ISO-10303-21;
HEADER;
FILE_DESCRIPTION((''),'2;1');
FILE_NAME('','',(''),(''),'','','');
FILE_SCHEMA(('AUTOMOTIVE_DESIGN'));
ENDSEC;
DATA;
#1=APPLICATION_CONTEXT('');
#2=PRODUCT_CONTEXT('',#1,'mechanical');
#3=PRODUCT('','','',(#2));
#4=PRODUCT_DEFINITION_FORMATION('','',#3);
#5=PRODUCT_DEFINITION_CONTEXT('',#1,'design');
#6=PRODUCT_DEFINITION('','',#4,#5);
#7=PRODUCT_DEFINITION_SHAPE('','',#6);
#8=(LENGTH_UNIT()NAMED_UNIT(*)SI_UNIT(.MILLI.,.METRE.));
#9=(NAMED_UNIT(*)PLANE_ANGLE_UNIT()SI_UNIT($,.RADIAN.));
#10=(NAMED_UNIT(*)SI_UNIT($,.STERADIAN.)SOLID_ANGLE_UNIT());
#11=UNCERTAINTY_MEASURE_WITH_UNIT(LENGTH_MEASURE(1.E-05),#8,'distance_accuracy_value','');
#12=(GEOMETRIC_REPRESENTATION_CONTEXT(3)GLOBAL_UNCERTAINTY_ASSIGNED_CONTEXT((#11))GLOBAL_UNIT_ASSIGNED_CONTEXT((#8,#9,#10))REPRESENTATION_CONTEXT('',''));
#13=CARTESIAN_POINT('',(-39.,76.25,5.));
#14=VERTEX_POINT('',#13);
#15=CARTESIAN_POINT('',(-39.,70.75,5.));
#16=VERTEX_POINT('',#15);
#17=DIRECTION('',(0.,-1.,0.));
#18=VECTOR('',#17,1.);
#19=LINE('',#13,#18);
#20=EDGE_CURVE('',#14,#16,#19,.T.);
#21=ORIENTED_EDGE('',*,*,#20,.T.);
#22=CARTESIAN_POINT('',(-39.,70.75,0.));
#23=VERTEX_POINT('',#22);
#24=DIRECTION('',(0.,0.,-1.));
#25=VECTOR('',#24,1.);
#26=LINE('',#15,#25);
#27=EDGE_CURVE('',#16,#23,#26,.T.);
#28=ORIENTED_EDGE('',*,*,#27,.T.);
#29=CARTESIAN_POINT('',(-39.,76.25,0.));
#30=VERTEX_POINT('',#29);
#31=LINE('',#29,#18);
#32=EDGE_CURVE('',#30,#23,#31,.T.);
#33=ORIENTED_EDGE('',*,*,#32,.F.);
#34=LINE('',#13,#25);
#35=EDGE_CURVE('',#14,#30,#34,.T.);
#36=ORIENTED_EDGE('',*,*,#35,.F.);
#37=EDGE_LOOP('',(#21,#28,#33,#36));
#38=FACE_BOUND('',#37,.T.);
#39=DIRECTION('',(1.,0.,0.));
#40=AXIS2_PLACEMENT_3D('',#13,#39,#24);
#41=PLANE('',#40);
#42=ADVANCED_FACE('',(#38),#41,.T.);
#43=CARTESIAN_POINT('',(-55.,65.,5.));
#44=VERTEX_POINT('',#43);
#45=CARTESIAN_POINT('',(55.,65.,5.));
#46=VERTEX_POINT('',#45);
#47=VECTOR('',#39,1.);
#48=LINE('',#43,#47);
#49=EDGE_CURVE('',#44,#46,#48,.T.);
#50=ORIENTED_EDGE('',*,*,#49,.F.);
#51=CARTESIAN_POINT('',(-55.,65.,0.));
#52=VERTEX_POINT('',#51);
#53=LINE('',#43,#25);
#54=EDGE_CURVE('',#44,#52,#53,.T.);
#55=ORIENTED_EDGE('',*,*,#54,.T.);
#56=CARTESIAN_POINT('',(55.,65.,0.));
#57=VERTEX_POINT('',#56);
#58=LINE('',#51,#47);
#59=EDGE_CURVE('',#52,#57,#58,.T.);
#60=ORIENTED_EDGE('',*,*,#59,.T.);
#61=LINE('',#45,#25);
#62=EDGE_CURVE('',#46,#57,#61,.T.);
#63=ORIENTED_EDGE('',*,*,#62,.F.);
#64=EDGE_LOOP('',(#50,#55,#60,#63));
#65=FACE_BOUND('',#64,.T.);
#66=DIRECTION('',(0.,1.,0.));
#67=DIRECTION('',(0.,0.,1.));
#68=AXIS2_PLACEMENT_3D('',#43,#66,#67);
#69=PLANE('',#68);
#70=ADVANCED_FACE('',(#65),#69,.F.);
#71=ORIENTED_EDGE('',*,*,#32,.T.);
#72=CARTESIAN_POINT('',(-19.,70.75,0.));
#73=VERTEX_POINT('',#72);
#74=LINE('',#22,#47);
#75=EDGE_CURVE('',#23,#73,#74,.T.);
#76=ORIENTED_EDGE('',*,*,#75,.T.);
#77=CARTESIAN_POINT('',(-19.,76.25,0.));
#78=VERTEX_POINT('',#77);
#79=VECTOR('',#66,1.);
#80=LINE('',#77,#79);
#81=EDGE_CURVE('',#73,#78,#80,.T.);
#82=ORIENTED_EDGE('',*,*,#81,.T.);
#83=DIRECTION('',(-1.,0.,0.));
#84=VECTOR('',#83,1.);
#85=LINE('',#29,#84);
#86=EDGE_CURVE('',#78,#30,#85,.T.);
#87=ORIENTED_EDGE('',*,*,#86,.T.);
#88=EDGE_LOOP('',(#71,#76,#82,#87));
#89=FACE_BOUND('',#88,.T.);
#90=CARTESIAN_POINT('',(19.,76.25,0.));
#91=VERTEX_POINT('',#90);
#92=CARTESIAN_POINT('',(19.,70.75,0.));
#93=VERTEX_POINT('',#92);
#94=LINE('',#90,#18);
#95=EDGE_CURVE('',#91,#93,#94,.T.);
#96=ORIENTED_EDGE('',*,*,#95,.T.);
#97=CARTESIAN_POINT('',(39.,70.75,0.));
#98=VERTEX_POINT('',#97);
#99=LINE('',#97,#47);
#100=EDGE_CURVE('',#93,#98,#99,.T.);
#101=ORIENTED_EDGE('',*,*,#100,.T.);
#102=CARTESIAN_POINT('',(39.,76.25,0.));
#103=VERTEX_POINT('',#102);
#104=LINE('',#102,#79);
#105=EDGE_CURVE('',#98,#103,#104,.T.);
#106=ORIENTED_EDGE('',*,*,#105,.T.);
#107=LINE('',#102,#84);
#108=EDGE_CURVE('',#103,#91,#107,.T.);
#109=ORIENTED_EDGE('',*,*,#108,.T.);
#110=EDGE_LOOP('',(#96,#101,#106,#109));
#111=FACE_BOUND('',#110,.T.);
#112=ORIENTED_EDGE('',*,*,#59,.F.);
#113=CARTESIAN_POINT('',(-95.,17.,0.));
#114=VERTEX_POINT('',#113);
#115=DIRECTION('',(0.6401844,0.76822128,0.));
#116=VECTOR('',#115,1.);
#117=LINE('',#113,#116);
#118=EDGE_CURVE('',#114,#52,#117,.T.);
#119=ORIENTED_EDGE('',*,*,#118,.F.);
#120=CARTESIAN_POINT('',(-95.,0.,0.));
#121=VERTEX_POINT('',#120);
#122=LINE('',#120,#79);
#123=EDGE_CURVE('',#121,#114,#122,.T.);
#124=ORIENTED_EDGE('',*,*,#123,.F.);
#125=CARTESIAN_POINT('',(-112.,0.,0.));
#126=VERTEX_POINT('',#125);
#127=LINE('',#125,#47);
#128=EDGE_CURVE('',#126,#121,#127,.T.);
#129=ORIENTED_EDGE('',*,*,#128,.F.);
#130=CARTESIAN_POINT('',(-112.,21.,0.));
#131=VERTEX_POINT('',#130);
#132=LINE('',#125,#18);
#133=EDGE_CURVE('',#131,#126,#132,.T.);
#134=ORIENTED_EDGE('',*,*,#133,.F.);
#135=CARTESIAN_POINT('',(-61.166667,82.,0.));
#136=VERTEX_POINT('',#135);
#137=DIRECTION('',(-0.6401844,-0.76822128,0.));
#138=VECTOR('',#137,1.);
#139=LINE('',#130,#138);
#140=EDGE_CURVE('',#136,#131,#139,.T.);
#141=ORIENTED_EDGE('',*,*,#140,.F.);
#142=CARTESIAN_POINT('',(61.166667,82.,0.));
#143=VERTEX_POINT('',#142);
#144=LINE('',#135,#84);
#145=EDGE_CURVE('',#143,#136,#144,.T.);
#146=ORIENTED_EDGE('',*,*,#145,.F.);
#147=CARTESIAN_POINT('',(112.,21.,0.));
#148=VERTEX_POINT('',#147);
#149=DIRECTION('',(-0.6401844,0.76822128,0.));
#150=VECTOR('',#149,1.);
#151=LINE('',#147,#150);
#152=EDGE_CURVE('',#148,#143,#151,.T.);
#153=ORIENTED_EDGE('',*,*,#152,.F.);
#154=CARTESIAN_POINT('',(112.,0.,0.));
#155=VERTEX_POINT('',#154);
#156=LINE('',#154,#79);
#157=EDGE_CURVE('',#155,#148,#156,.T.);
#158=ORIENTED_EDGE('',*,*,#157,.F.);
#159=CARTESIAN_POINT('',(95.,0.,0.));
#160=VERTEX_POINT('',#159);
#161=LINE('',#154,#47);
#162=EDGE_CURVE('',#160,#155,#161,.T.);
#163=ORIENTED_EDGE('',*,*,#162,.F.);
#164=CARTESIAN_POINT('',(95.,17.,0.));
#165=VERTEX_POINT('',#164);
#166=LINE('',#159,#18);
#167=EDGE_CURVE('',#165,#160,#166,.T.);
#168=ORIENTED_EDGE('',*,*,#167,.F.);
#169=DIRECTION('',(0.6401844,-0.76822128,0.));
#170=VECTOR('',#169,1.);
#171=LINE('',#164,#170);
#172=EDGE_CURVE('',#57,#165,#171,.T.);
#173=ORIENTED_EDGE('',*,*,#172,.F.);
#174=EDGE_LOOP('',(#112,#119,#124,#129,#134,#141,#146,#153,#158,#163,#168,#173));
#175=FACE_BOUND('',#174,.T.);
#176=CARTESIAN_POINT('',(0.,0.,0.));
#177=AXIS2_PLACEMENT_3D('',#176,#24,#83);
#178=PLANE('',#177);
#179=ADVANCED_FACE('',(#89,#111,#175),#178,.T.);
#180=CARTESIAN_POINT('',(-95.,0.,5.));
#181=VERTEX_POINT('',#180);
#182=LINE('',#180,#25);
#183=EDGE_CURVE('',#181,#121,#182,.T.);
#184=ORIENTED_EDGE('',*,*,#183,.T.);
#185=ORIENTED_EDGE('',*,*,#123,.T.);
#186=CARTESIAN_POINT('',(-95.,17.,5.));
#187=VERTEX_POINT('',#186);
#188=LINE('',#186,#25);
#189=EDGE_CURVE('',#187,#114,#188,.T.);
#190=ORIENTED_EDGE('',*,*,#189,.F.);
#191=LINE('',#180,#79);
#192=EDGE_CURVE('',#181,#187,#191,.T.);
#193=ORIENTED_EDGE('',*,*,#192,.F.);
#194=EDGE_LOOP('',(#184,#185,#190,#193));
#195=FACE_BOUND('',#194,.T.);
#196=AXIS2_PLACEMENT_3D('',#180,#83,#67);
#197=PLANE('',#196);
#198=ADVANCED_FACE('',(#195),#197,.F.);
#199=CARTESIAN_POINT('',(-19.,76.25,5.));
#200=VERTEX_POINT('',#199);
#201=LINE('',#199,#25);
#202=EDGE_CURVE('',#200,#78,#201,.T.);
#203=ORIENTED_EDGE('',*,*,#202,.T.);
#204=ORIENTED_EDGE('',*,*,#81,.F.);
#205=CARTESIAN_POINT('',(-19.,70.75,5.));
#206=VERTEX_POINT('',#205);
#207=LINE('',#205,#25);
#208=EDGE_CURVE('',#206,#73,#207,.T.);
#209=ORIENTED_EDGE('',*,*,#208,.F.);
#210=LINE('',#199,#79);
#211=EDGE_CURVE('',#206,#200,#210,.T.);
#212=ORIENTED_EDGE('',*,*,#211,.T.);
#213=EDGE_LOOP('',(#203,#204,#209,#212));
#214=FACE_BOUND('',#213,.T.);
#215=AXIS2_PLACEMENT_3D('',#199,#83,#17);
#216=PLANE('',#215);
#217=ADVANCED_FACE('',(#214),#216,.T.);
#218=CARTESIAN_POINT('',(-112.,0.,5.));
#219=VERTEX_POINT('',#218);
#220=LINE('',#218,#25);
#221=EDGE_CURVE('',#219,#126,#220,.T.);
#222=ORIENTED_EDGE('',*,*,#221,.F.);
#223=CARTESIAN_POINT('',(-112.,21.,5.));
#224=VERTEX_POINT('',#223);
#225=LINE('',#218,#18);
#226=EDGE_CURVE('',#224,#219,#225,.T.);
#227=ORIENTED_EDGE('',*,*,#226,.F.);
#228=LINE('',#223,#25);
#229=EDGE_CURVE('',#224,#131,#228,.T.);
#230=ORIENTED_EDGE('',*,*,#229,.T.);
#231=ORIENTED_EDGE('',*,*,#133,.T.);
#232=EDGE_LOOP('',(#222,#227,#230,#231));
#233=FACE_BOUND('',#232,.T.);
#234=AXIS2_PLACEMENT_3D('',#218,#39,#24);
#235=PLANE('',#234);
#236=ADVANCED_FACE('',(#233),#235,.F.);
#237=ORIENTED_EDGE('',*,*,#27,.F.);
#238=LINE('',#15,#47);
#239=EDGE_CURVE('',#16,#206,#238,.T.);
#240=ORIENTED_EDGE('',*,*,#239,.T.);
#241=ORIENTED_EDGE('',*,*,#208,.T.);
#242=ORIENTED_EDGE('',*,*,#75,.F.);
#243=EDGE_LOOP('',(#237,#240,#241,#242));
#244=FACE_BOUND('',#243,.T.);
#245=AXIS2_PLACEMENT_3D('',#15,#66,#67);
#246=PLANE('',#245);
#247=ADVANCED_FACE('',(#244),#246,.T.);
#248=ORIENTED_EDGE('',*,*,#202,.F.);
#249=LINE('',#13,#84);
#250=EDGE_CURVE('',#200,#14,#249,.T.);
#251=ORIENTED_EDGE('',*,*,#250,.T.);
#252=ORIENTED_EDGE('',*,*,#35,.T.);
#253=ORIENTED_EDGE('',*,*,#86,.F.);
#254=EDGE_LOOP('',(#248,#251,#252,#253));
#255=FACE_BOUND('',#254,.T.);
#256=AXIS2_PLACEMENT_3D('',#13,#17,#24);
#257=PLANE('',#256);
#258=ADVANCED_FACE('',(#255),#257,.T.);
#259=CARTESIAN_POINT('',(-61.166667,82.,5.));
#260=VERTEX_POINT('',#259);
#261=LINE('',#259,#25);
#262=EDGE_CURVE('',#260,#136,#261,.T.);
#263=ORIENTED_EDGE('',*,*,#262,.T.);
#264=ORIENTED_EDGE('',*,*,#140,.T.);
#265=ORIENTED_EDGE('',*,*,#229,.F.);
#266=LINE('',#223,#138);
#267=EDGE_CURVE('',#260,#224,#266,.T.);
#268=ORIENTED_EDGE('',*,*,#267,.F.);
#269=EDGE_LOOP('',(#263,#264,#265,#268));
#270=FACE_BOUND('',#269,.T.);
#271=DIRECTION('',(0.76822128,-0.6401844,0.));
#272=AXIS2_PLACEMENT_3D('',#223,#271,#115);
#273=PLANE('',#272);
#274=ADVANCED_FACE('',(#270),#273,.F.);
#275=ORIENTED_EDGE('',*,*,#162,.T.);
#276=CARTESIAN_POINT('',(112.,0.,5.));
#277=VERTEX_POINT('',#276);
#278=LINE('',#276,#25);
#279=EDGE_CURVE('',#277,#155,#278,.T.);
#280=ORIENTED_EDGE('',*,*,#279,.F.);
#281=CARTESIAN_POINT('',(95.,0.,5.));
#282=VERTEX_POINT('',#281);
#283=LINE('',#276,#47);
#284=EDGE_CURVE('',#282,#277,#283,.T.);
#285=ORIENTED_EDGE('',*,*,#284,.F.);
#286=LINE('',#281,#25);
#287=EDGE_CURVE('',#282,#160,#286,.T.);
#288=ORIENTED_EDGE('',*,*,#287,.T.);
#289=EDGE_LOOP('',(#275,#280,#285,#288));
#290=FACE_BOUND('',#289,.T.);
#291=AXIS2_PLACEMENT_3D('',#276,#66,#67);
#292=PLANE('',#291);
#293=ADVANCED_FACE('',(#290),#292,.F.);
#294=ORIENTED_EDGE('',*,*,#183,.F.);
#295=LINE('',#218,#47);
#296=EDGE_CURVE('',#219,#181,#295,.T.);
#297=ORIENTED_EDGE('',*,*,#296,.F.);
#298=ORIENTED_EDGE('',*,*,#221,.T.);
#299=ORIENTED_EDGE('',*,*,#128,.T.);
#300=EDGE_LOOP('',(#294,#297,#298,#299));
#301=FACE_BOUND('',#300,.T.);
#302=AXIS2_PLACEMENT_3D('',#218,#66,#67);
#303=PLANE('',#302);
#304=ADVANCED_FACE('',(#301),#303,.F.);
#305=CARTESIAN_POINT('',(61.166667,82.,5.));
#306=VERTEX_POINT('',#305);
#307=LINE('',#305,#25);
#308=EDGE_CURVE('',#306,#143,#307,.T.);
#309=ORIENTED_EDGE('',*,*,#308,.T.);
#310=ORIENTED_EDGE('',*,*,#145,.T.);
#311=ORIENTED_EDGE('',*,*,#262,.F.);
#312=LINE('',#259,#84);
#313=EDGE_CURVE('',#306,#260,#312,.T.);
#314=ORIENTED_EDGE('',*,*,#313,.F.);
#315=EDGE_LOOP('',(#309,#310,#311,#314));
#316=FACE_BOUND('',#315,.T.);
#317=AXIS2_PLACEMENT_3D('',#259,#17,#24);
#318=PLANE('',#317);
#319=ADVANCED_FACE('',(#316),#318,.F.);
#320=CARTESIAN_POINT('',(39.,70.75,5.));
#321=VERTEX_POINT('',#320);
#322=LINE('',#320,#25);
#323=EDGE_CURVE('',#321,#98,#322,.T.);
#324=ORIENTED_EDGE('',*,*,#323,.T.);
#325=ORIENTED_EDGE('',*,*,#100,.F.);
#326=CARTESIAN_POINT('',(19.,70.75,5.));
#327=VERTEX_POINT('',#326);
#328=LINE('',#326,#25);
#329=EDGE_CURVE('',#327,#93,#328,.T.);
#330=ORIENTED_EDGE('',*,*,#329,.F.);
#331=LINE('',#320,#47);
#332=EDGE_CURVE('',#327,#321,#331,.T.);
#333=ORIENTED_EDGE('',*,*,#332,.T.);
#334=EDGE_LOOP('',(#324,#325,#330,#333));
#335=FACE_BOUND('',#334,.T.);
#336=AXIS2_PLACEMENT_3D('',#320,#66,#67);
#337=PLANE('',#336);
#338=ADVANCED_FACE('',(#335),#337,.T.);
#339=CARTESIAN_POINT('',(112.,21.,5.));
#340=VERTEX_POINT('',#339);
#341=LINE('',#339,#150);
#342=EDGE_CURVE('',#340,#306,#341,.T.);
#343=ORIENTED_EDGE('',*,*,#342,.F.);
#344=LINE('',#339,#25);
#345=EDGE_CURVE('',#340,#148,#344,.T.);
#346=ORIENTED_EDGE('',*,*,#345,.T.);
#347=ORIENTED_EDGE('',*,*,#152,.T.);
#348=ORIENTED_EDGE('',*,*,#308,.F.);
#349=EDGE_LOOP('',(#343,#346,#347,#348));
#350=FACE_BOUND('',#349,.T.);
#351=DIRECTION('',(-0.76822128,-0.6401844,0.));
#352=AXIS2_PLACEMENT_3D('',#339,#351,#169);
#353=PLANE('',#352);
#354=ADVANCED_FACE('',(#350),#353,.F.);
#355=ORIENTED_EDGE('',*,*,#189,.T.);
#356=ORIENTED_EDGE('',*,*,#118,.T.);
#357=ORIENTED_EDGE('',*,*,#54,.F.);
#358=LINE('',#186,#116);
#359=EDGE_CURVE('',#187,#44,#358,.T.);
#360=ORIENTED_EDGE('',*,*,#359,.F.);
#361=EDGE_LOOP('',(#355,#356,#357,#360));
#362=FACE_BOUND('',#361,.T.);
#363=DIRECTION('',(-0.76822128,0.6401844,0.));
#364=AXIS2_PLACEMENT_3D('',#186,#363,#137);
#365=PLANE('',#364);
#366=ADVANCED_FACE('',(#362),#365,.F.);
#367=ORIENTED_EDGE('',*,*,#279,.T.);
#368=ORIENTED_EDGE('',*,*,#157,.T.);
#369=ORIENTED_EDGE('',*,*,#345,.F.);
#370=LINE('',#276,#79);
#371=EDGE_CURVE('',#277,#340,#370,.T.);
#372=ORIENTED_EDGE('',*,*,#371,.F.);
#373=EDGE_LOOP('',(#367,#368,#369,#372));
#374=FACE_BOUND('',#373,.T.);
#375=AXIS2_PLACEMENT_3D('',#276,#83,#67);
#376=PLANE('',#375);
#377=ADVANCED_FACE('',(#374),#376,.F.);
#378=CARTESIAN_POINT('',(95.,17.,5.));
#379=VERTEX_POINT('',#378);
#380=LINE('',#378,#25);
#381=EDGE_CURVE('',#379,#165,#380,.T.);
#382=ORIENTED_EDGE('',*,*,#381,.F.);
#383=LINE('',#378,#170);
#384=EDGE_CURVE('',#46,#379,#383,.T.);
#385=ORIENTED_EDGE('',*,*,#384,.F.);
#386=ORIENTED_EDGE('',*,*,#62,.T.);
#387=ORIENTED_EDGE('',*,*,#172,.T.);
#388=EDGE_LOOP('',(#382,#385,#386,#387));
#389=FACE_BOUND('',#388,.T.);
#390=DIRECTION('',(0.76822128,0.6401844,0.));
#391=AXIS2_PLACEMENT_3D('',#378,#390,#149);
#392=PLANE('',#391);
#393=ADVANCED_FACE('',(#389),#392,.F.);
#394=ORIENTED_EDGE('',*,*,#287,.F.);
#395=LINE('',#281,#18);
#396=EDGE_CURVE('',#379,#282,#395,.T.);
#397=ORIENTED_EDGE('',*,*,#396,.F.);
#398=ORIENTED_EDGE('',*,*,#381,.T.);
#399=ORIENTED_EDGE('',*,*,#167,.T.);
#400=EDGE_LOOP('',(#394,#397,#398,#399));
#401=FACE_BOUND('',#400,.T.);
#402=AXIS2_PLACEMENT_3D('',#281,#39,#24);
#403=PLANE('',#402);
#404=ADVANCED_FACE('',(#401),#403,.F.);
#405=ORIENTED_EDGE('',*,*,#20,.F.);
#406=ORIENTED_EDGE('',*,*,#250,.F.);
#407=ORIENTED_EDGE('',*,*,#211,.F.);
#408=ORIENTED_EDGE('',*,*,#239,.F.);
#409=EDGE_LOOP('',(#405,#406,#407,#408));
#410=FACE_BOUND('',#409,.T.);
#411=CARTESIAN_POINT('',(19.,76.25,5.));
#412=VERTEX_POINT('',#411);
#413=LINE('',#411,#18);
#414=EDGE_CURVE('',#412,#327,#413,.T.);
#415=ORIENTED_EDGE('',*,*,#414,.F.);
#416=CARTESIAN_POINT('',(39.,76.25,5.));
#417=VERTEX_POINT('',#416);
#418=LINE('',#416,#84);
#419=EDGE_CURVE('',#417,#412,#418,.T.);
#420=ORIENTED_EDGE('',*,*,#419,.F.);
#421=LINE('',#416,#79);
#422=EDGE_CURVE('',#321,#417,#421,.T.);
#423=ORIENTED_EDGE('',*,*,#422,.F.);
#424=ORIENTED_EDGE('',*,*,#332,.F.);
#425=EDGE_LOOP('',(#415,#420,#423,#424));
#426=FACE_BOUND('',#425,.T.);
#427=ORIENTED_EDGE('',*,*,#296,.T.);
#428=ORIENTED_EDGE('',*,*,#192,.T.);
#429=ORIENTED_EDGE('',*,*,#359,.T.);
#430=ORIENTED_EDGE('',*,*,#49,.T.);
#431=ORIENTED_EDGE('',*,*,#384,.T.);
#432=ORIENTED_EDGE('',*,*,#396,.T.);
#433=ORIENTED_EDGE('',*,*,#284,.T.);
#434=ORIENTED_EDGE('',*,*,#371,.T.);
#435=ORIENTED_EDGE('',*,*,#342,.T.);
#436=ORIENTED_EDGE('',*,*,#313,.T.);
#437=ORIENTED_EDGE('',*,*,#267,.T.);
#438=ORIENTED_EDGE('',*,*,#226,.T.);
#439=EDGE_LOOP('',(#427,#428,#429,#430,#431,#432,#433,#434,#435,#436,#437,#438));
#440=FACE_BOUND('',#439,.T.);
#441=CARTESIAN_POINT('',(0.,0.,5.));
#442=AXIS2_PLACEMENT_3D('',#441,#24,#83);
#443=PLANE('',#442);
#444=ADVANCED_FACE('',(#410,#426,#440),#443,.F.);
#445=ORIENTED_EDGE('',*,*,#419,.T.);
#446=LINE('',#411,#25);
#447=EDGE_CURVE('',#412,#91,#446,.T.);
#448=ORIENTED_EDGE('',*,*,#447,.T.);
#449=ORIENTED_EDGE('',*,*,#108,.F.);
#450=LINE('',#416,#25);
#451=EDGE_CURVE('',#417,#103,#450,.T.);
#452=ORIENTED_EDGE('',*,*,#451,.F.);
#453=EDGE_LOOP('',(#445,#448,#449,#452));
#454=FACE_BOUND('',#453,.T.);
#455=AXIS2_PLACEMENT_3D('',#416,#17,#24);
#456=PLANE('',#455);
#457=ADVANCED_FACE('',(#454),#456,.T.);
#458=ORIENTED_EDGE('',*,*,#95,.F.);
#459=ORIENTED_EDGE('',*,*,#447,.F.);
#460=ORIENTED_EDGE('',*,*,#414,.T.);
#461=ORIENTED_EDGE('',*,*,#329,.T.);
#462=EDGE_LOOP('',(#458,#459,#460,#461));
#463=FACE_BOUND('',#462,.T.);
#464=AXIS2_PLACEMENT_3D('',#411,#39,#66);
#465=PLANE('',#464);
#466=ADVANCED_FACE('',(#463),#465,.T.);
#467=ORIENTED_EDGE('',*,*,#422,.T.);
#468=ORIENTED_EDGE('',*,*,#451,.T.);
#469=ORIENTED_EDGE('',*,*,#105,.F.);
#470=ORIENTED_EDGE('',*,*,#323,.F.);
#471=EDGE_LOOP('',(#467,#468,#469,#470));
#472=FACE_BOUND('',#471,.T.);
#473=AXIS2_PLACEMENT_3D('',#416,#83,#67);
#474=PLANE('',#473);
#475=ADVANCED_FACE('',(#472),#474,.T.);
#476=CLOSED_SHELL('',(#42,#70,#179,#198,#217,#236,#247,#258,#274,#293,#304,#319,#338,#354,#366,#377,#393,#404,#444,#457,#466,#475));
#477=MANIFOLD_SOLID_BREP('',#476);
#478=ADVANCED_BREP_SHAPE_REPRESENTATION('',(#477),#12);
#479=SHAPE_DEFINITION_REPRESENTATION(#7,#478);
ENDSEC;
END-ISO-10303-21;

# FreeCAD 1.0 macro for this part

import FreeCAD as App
import Part
import Sketcher

V = App.Vector
Q = App.Units.Quantity

doc = App.newDocument("Part")
params = doc.addObject("Spreadsheet::Sheet", "Params")
for row, (alias, value) in enumerate([
    ("sketch1_width", "17 mm"),
    ("sketch1_width2", "110 mm"),
    ("sketch1_width3", "20 mm"),
    ("sketch1_height", "21 mm"),
    ("sketch1_height2", "5.5 mm"),
    ("pad1_length", "5 mm"),
], start=1):
    params.set(f"A{row}", alias)
    params.set(f"B{row}", "=" + value)
    params.setAlias(f"B{row}", alias)

body = doc.addObject("PartDesign::Body", "Body")

# Sketch on XY plane
sketch1 = body.newObject("Sketcher::SketchObject", "Sketch")
sketch1.AttachmentSupport = (doc.getObject("XY_Plane"), [""])
sketch1.MapMode = "FlatFace"
sketch1.addGeometry([
    Part.LineSegment(V(-112, 0, 0), V(-95, 0, 0)),  # 0
    Part.LineSegment(V(-95, 0, 0), V(-95, 17, 0)),  # 1
    Part.LineSegment(V(-95, 17, 0), V(-55, 65, 0)),  # 2
    Part.LineSegment(V(-55, 65, 0), V(55, 65, 0)),  # 3
    Part.LineSegment(V(55, 65, 0), V(95, 17, 0)),  # 4
    Part.LineSegment(V(95, 17, 0), V(95, 0, 0)),  # 5
    Part.LineSegment(V(95, 0, 0), V(112, 0, 0)),  # 6
    Part.LineSegment(V(112, 0, 0), V(112, 21, 0)),  # 7
    Part.LineSegment(V(112, 21, 0), V(61, 82, 0)),  # 8
    Part.LineSegment(V(61, 82, 0), V(-61, 82, 0)),  # 9
    Part.LineSegment(V(-61, 82, 0), V(-112, 21, 0)),  # 10
    Part.LineSegment(V(-112, 21, 0), V(-112, 0, 0)),  # 11
    Part.LineSegment(V(-19, 71, 0), V(-39, 71, 0)),  # 12
    Part.LineSegment(V(-39, 71, 0), V(-39, 76, 0)),  # 13
    Part.LineSegment(V(-39, 76, 0), V(-19, 76, 0)),  # 14
    Part.LineSegment(V(-19, 76, 0), V(-19, 71, 0)),  # 15
    Part.LineSegment(V(39, 71, 0), V(19, 71, 0)),  # 16
    Part.LineSegment(V(19, 71, 0), V(19, 76, 0)),  # 17
    Part.LineSegment(V(19, 76, 0), V(39, 76, 0)),  # 18
    Part.LineSegment(V(39, 76, 0), V(39, 71, 0)),  # 19
], False)
sketch1.addConstraint([
    Sketcher.Constraint("Coincident", 0, 2, 1, 1),
    Sketcher.Constraint("Coincident", 1, 2, 2, 1),
    Sketcher.Constraint("Coincident", 2, 2, 3, 1),
    Sketcher.Constraint("Coincident", 3, 2, 4, 1),
    Sketcher.Constraint("Coincident", 4, 2, 5, 1),
    Sketcher.Constraint("Coincident", 5, 2, 6, 1),
    Sketcher.Constraint("Coincident", 6, 2, 7, 1),
    Sketcher.Constraint("Coincident", 7, 2, 8, 1),
    Sketcher.Constraint("Coincident", 8, 2, 9, 1),
    Sketcher.Constraint("Coincident", 9, 2, 10, 1),
    Sketcher.Constraint("Coincident", 10, 2, 11, 1),
    Sketcher.Constraint("Coincident", 11, 2, 0, 1),
    Sketcher.Constraint("Coincident", 12, 2, 13, 1),
    Sketcher.Constraint("Coincident", 13, 2, 14, 1),
    Sketcher.Constraint("Coincident", 14, 2, 15, 1),
    Sketcher.Constraint("Coincident", 15, 2, 12, 1),
    Sketcher.Constraint("Coincident", 16, 2, 17, 1),
    Sketcher.Constraint("Coincident", 17, 2, 18, 1),
    Sketcher.Constraint("Coincident", 18, 2, 19, 1),
    Sketcher.Constraint("Coincident", 19, 2, 16, 1),
    Sketcher.Constraint("Horizontal", 0),
    Sketcher.Constraint("Vertical", 1),
    Sketcher.Constraint("Horizontal", 3),
    Sketcher.Constraint("Vertical", 5),
    Sketcher.Constraint("Horizontal", 6),
    Sketcher.Constraint("Vertical", 7),
    Sketcher.Constraint("Horizontal", 9),
    Sketcher.Constraint("Vertical", 11),
    Sketcher.Constraint("Horizontal", 12),
    Sketcher.Constraint("Vertical", 13),
    Sketcher.Constraint("Horizontal", 14),
    Sketcher.Constraint("Vertical", 15),
    Sketcher.Constraint("Horizontal", 16),
    Sketcher.Constraint("Vertical", 17),
    Sketcher.Constraint("Horizontal", 18),
    Sketcher.Constraint("Vertical", 19),
    Sketcher.Constraint("Symmetric", 0, 2, 5, 2, -1, 1),
    Sketcher.Constraint("Symmetric", 7, 2, 10, 2, -2),
    Sketcher.Constraint("Symmetric", 15, 2, 16, 2, -2),
    Sketcher.Constraint("Symmetric", 13, 2, 18, 2, -2),
    Sketcher.Constraint("PointOnObject", 0, 2, -1),
    Sketcher.Constraint("Parallel", 4, 8),
    Sketcher.Constraint("Parallel", 2, 10),
    Sketcher.Constraint("Horizontal", 1, 2, 4, 2),
    Sketcher.Constraint("Equal", 6, 1),
    Sketcher.Constraint("Equal", 2, 4),
    Sketcher.Constraint("DistanceX", 0, 1, 0, 2, Q("17 mm")),
    Sketcher.Constraint("DistanceX", 3, 1, 3, 2, Q("110 mm")),
    Sketcher.Constraint("DistanceX", 12, 2, 12, 1, Q("20 mm")),
    Sketcher.Constraint("DistanceY", 7, 1, 7, 2, Q("21 mm")),
    Sketcher.Constraint("DistanceY", 13, 1, 13, 2, Q("5.5 mm")),
    Sketcher.Constraint("DistanceX", 0, 2, -1, 1, Q("95 mm")),
    Sketcher.Constraint("DistanceY", -1, 1, 2, 2, Q("65 mm")),
    Sketcher.Constraint("DistanceY", -1, 1, 8, 2, Q("82 mm")),
    Sketcher.Constraint("DistanceX", 12, 2, -1, 1, Q("39 mm")),
    Sketcher.Constraint("DistanceY", -1, 1, 12, 2, Q("70.75 mm")),
])
sketch1.setExpression("Constraints[46]", "Params.sketch1_width")
sketch1.setExpression("Constraints[47]", "Params.sketch1_width2")
sketch1.setExpression("Constraints[48]", "Params.sketch1_width3")
sketch1.setExpression("Constraints[49]", "Params.sketch1_height")
sketch1.setExpression("Constraints[50]", "Params.sketch1_height2")
pad1 = body.newObject("PartDesign::Pad", "Pad")
pad1.Profile = sketch1
pad1.setExpression("Length", "Params.pad1_length")

doc.recompute()
